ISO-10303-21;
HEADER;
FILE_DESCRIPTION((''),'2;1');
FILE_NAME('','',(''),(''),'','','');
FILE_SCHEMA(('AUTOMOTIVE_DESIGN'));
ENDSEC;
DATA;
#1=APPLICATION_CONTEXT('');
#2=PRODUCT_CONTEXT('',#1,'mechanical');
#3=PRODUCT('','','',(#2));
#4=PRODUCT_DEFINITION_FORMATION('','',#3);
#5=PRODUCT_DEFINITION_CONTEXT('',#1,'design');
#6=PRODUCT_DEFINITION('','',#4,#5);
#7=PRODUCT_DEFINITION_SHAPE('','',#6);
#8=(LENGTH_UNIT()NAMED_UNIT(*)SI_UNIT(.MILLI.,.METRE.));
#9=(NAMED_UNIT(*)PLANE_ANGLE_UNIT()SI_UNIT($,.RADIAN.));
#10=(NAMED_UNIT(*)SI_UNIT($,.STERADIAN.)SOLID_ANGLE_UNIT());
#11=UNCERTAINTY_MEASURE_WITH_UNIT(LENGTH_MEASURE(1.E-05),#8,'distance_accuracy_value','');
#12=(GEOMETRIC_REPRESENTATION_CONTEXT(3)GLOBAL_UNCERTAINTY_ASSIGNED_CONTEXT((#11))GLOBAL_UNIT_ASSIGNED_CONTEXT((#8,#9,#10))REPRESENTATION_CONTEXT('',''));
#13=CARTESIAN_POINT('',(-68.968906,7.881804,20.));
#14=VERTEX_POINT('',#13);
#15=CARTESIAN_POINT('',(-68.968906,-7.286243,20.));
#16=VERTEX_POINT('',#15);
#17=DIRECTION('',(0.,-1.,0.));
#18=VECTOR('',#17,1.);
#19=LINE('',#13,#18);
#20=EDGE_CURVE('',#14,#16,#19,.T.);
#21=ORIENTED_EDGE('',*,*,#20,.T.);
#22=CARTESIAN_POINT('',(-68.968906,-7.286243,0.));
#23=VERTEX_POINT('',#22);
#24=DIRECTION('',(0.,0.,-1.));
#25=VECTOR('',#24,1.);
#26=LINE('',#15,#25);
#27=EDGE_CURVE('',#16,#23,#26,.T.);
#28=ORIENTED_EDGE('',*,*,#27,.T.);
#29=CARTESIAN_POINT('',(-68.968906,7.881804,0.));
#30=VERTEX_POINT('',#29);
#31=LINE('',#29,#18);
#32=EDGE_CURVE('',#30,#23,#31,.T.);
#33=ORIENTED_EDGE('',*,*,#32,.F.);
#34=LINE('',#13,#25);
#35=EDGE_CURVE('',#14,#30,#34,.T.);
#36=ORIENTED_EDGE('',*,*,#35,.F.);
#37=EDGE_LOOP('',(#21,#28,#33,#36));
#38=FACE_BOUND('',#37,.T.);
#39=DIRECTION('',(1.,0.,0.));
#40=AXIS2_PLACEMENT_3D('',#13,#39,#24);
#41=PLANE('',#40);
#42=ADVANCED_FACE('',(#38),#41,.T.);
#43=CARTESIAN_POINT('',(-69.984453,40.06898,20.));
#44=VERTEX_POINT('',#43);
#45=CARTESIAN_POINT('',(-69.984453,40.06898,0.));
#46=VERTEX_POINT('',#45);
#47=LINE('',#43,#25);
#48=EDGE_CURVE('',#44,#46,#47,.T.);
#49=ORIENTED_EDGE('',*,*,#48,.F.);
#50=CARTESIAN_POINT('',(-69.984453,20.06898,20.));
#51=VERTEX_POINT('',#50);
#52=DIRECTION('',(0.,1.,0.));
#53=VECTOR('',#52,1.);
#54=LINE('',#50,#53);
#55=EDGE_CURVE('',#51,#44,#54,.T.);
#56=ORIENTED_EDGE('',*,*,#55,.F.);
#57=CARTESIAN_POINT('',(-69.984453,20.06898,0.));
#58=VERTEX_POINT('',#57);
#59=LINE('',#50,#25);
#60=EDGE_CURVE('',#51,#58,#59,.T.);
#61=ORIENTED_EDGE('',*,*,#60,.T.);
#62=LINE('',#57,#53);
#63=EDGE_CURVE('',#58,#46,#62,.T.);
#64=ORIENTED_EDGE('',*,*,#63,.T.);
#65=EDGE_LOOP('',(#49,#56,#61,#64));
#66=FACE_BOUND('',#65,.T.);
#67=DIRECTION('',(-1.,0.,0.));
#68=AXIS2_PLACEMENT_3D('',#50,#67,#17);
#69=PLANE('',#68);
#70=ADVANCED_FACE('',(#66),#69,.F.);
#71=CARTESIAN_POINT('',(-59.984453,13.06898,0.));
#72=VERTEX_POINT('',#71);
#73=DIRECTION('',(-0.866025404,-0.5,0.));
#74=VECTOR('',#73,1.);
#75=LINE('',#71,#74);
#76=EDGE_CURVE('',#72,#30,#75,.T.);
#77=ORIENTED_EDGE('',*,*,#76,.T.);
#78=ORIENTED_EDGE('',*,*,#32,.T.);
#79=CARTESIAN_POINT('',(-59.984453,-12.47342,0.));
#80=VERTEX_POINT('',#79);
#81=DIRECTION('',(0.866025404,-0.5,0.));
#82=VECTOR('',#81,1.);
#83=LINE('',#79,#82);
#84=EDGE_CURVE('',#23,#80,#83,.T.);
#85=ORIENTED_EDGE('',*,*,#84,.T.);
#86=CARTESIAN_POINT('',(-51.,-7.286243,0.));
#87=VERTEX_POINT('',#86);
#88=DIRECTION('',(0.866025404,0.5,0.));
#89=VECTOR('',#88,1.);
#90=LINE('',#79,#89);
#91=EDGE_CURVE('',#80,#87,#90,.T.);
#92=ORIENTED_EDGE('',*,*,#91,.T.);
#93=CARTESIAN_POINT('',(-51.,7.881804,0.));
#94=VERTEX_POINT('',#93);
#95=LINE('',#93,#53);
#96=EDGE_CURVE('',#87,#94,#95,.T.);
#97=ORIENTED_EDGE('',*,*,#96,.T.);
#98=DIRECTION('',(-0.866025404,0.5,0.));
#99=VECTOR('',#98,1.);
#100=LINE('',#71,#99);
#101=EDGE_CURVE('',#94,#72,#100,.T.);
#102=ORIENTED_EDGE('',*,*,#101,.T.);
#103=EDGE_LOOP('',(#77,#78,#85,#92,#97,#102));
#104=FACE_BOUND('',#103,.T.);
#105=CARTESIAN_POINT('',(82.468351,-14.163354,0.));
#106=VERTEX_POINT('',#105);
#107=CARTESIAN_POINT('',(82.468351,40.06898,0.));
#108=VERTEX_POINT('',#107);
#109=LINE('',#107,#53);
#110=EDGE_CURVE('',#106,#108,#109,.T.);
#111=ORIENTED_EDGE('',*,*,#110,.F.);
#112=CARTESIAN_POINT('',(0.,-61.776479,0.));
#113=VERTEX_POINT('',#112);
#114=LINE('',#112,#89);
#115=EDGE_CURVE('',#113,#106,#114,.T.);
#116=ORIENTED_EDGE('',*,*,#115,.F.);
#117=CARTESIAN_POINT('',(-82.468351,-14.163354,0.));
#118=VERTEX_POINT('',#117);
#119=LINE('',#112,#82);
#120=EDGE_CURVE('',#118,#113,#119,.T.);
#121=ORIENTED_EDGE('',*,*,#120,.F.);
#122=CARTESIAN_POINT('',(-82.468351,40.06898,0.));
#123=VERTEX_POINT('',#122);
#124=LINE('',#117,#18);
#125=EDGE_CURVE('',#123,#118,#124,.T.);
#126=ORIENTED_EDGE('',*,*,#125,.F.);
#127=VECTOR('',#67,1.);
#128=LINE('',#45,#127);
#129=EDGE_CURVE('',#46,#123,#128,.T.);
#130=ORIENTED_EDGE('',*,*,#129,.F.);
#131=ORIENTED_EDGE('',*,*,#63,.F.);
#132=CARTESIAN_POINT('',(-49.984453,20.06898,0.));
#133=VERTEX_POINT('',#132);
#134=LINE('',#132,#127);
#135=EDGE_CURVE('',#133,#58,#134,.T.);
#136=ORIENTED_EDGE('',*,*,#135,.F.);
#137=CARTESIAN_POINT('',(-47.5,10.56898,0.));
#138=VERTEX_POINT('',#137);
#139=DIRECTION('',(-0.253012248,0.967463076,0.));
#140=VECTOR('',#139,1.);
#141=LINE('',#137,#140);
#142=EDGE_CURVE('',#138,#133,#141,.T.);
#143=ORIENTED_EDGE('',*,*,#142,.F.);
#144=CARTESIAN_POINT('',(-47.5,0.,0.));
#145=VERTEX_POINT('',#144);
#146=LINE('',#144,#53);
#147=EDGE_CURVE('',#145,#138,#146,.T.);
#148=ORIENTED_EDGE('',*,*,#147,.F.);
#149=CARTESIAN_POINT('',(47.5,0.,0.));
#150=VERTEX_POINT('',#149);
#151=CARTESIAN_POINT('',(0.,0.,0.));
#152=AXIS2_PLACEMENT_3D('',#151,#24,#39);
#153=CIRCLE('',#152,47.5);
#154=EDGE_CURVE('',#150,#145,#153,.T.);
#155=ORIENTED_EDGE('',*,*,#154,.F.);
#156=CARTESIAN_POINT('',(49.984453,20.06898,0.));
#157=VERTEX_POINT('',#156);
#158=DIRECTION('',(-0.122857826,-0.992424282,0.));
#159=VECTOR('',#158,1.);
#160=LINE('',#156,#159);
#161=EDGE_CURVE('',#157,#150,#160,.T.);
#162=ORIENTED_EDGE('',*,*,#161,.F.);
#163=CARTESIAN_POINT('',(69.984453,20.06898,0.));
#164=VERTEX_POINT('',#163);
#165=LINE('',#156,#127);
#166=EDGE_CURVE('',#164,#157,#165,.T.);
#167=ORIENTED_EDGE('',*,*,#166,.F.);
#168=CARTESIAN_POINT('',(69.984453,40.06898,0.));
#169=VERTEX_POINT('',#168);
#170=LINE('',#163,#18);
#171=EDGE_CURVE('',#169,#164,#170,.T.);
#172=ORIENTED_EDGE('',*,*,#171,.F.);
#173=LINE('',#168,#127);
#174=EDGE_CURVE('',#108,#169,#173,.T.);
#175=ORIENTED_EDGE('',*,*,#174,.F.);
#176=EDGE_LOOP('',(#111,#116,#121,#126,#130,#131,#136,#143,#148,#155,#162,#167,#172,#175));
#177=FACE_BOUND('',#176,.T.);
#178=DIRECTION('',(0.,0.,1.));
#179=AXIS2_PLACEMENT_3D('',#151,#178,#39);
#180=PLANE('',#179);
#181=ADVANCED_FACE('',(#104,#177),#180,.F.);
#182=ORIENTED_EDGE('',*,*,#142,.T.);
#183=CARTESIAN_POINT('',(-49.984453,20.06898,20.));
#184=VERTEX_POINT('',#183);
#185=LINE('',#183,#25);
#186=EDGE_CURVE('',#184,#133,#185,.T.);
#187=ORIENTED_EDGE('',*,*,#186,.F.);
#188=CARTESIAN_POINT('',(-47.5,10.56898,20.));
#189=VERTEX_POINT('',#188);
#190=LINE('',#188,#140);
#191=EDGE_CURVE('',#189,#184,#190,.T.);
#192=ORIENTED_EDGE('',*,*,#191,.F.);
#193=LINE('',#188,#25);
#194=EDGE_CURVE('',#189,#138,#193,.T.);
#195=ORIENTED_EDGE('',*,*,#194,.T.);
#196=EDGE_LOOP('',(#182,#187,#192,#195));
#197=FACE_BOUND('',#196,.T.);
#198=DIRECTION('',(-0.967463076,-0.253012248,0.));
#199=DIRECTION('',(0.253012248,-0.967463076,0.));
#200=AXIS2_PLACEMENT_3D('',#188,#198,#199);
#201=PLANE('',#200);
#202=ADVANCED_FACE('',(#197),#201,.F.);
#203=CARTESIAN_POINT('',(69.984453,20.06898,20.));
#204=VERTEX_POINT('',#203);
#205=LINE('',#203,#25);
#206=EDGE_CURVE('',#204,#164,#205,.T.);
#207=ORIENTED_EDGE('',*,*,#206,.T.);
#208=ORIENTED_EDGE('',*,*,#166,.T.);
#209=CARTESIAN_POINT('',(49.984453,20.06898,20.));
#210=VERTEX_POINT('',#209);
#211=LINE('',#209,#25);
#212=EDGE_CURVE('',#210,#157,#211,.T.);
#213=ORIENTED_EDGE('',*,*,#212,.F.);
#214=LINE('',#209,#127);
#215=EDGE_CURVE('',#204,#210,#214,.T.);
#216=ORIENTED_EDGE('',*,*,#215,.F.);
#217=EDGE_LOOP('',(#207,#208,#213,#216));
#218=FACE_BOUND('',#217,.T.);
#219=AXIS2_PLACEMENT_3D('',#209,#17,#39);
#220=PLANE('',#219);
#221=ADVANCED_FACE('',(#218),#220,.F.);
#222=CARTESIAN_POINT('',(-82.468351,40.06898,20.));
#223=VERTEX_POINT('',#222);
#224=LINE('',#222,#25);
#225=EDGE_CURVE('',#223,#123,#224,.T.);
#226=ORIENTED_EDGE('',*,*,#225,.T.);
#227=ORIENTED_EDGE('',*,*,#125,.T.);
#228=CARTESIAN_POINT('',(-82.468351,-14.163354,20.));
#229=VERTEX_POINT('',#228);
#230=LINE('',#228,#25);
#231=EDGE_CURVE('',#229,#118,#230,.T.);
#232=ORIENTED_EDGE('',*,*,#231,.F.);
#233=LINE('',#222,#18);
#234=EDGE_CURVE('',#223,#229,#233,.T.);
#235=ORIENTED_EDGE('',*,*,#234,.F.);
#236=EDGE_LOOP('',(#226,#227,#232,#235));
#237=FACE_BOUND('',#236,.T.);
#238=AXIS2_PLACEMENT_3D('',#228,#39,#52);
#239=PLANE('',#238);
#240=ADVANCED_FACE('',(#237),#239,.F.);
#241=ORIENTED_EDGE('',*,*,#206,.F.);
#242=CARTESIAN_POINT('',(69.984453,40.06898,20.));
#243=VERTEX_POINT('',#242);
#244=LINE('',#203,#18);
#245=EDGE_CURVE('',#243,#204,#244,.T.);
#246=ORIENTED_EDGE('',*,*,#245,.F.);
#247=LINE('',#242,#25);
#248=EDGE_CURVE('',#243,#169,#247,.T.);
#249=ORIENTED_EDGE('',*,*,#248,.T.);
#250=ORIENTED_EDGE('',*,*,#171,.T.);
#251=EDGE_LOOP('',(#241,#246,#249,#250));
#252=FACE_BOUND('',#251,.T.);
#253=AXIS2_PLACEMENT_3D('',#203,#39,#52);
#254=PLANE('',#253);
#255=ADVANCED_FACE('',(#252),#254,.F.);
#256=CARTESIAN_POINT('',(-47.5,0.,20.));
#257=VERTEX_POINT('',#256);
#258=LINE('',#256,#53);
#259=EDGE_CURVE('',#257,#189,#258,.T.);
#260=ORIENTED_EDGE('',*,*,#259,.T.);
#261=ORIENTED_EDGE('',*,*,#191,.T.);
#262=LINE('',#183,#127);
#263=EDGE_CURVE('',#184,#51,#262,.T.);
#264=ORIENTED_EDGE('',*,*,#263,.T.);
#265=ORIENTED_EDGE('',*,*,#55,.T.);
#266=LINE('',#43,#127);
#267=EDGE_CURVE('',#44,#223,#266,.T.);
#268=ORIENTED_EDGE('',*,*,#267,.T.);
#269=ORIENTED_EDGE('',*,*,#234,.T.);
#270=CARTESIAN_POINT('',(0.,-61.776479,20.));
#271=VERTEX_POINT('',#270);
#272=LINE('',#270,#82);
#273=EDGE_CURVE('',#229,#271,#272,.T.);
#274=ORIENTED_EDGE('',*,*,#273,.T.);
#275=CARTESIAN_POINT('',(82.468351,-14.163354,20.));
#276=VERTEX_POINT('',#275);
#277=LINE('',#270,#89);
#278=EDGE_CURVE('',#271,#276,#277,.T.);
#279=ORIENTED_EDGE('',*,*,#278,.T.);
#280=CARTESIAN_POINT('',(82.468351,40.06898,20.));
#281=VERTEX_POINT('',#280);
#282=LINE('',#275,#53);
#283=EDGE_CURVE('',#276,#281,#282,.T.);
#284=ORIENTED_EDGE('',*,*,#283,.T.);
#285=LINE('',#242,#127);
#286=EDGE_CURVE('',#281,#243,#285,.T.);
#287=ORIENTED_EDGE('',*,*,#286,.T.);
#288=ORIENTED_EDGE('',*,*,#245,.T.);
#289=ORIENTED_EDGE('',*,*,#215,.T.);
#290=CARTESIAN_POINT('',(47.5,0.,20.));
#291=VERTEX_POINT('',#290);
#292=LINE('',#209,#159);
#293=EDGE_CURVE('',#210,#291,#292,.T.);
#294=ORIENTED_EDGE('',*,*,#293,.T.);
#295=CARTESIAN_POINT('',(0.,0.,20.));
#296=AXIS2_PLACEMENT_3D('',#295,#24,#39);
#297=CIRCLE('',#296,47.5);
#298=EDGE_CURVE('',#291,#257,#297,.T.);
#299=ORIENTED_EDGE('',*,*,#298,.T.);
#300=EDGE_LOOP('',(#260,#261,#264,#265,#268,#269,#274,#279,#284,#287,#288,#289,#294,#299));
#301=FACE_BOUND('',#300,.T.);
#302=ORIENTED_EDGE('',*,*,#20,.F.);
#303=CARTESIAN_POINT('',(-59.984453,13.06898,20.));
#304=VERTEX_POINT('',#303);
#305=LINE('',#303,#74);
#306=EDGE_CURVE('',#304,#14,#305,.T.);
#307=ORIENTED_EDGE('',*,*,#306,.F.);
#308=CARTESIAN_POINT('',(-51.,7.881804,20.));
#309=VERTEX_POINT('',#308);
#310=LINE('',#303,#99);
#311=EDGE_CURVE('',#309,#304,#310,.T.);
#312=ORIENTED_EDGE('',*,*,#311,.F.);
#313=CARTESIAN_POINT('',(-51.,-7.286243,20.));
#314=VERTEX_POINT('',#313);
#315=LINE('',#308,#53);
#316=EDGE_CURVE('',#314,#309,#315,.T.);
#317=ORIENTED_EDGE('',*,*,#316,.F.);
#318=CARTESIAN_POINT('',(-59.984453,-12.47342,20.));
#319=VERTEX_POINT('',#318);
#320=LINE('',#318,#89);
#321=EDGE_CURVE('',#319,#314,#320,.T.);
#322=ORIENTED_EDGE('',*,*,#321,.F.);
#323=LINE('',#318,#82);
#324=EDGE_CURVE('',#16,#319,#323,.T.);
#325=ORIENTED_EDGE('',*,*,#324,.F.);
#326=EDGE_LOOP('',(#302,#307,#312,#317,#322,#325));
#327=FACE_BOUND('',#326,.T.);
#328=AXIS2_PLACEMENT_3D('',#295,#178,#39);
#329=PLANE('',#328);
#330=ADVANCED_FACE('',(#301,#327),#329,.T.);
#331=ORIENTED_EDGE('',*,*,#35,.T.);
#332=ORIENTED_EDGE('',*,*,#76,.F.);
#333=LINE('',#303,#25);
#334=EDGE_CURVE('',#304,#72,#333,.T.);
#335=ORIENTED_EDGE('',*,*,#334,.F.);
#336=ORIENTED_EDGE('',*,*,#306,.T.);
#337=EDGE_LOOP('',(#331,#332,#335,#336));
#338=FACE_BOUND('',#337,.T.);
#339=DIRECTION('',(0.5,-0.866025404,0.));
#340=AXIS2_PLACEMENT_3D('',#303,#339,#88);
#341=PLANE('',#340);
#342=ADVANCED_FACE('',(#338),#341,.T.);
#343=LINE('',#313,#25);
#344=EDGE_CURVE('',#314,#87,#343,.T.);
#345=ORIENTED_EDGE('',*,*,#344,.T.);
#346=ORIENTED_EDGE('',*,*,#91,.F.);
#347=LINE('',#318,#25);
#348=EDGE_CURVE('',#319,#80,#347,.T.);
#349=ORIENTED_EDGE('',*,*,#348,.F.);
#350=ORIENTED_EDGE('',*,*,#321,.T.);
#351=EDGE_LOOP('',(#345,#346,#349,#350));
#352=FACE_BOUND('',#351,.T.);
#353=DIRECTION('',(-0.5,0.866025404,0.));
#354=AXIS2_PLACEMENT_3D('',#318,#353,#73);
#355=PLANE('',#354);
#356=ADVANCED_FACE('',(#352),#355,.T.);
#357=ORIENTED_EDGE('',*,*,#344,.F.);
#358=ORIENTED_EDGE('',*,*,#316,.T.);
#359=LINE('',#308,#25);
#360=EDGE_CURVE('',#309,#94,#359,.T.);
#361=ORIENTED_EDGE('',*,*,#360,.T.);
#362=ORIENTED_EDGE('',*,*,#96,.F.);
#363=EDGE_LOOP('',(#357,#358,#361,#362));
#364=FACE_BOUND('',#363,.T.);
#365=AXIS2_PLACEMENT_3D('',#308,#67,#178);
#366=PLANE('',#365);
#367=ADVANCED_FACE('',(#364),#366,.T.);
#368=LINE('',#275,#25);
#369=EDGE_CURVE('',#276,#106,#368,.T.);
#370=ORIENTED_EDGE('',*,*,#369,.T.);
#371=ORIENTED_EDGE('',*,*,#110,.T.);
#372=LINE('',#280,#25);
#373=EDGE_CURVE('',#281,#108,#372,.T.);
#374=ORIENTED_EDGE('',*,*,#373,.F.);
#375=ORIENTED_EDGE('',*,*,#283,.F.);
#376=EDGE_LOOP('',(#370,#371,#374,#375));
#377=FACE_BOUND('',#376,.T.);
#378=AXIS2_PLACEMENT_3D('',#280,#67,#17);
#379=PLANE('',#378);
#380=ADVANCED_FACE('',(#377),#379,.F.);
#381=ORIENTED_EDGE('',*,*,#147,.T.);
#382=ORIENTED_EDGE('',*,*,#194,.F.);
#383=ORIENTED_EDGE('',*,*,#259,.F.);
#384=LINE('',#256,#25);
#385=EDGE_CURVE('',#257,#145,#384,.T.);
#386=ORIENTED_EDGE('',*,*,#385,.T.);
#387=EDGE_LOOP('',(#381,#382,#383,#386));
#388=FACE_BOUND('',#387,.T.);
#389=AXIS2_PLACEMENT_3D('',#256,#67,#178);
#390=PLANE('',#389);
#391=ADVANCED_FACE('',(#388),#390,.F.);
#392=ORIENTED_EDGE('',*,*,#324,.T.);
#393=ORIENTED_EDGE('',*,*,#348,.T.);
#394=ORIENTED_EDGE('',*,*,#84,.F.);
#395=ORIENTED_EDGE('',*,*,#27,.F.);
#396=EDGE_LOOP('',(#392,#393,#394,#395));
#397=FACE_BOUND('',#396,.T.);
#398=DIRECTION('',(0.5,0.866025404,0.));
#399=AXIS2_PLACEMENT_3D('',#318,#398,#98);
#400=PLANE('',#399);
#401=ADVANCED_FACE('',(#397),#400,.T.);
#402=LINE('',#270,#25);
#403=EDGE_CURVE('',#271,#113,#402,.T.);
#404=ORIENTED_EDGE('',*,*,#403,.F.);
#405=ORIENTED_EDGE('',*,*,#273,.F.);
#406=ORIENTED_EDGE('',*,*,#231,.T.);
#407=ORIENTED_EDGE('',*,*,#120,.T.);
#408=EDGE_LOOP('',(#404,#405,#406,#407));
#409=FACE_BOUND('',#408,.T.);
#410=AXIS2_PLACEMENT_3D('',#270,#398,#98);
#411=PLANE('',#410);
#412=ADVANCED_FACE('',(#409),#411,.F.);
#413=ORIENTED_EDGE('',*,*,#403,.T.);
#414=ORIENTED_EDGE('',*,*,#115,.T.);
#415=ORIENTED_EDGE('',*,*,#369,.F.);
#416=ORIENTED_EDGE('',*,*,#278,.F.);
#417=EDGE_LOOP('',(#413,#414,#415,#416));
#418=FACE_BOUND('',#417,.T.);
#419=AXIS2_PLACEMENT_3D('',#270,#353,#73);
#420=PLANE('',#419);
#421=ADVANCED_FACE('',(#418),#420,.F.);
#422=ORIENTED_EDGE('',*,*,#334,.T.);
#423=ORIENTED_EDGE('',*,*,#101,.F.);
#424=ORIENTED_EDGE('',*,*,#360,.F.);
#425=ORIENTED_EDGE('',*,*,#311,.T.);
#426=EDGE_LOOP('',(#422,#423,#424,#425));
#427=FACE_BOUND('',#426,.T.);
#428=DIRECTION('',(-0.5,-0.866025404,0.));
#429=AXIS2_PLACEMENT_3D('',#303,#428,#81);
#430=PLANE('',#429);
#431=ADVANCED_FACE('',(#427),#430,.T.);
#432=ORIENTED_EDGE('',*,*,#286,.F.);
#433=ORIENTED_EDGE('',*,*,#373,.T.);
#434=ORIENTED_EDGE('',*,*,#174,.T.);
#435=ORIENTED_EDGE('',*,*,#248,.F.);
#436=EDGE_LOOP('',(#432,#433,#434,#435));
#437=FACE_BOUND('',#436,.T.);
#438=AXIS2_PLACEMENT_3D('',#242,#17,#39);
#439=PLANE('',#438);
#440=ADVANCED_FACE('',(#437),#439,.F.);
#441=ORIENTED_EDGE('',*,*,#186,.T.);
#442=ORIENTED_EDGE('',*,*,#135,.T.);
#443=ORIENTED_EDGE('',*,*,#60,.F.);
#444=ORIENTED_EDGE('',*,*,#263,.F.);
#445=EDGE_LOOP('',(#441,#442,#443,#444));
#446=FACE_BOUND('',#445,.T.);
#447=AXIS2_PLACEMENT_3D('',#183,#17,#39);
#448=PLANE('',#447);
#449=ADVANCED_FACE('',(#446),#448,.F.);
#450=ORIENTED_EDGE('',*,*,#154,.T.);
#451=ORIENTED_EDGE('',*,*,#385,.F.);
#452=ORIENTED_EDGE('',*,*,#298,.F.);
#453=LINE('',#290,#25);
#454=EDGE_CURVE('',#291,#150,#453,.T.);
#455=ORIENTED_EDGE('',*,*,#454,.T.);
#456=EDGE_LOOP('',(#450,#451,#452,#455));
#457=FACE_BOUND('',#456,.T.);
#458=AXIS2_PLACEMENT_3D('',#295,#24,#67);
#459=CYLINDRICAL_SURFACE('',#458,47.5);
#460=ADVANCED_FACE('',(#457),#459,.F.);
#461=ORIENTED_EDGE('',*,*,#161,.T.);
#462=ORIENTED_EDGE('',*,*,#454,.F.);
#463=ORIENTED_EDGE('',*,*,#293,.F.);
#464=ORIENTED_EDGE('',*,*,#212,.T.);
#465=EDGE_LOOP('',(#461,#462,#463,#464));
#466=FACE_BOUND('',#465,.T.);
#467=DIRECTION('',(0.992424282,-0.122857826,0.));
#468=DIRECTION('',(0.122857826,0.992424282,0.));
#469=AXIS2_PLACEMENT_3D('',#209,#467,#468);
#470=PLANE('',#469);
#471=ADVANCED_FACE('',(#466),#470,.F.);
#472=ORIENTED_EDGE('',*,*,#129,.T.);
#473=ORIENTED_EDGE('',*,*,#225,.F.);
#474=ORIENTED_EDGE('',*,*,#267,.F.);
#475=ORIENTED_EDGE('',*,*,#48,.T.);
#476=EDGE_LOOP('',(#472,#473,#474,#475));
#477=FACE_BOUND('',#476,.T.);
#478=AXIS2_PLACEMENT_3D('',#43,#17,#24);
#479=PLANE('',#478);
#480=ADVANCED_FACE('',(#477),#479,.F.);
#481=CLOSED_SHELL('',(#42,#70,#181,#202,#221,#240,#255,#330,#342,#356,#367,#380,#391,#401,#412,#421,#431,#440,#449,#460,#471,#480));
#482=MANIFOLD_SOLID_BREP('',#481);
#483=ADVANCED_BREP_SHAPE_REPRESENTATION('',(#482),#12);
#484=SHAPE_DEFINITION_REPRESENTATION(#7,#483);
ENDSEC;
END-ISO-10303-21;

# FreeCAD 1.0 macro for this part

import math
import FreeCAD as App
import Part
import Sketcher
from FreeCAD import Vector
Q = App.Units.Quantity

doc = App.newDocument("Part")
body = doc.addObject("PartDesign::Body", "Body")

# Sketch on XY plane
sketch1 = doc.addObject("Sketcher::SketchObject", "Sketch")
body.addObject(sketch1)
sketch1.AttachmentSupport = (doc.XY_Plane, [""])
sketch1.MapMode = "FlatFace"
sketch1.addGeometry([
    Part.LineSegment(Vector(-50, 20, 0), Vector(-70, 20, 0)),  # 0
    Part.LineSegment(Vector(-70, 20, 0), Vector(-70, 40, 0)),  # 1
    Part.LineSegment(Vector(-70, 40, 0), Vector(-82, 40, 0)),  # 2
    Part.LineSegment(Vector(-82, 40, 0), Vector(-82, -14, 0)),  # 3
    Part.LineSegment(Vector(-82, -14, 0), Vector(0, -62, 0)),  # 4
    Part.LineSegment(Vector(0, -62, 0), Vector(82, -14, 0)),  # 5
    Part.LineSegment(Vector(82, -14, 0), Vector(82, 40, 0)),  # 6
    Part.LineSegment(Vector(82, 40, 0), Vector(70, 40, 0)),  # 7
    Part.LineSegment(Vector(70, 40, 0), Vector(70, 20, 0)),  # 8
    Part.LineSegment(Vector(70, 20, 0), Vector(50, 20, 0)),  # 9
    Part.LineSegment(Vector(50, 20, 0), Vector(48, 0, 0)),  # 10
    Part.ArcOfCircle(Part.Circle(Vector(0, 0, 0), Vector(0, 0, 1), 48), math.radians(180), math.radians(360)),  # 11
    Part.LineSegment(Vector(-48, 0, 0), Vector(-48, 11, 0)),  # 12
    Part.LineSegment(Vector(-48, 11, 0), Vector(-50, 20, 0)),  # 13
    Part.LineSegment(Vector(-69, 8, 0), Vector(-60, 13, 0)),  # 14
    Part.LineSegment(Vector(-60, 13, 0), Vector(-51, 8, 0)),  # 15
    Part.LineSegment(Vector(-51, 8, 0), Vector(-51, -7, 0)),  # 16
    Part.LineSegment(Vector(-51, -7, 0), Vector(-60, -12, 0)),  # 17
    Part.LineSegment(Vector(-60, -12, 0), Vector(-69, -7, 0)),  # 18
    Part.LineSegment(Vector(-69, -7, 0), Vector(-69, 8, 0)),  # 19
], False)
sketch1.addConstraint([
    Sketcher.Constraint("Coincident", 0, 2, 1, 1),
    Sketcher.Constraint("Coincident", 1, 2, 2, 1),
    Sketcher.Constraint("Coincident", 2, 2, 3, 1),
    Sketcher.Constraint("Coincident", 3, 2, 4, 1),
    Sketcher.Constraint("Coincident", 4, 2, 5, 1),
    Sketcher.Constraint("Coincident", 5, 2, 6, 1),
    Sketcher.Constraint("Coincident", 6, 2, 7, 1),
    Sketcher.Constraint("Coincident", 7, 2, 8, 1),
    Sketcher.Constraint("Coincident", 8, 2, 9, 1),
    Sketcher.Constraint("Coincident", 9, 2, 10, 1),
    Sketcher.Constraint("Coincident", 10, 2, 11, 2),
    Sketcher.Constraint("Tangent", 11, 1, 12, 1),
    Sketcher.Constraint("Coincident", 12, 2, 13, 1),
    Sketcher.Constraint("Coincident", 13, 2, 0, 1),
    Sketcher.Constraint("Coincident", 14, 2, 15, 1),
    Sketcher.Constraint("Coincident", 15, 2, 16, 1),
    Sketcher.Constraint("Coincident", 16, 2, 17, 1),
    Sketcher.Constraint("Coincident", 17, 2, 18, 1),
    Sketcher.Constraint("Coincident", 18, 2, 19, 1),
    Sketcher.Constraint("Coincident", 19, 2, 14, 1),
    Sketcher.Constraint("Horizontal", 0),
    Sketcher.Constraint("Vertical", 1),
    Sketcher.Constraint("Horizontal", 2),
    Sketcher.Constraint("Vertical", 3),
    Sketcher.Constraint("Vertical", 6),
    Sketcher.Constraint("Horizontal", 7),
    Sketcher.Constraint("Vertical", 8),
    Sketcher.Constraint("Horizontal", 9),
    Sketcher.Constraint("Vertical", 12),
    Sketcher.Constraint("Vertical", 16),
    Sketcher.Constraint("Vertical", 19),
    Sketcher.Constraint("Coincident", 11, 3, -1, 1),
    Sketcher.Constraint("Symmetric", 3, 2, 5, 2, -2),
    Sketcher.Constraint("Symmetric", 1, 2, 7, 2, -2),
    Sketcher.Constraint("Symmetric", 9, 2, 13, 2, -2),
    Sketcher.Constraint("PointOnObject", 4, 2, -2),
    Sketcher.Constraint("PointOnObject", 10, 2, -1),
    Sketcher.Constraint("Parallel", 5, 14),
    Sketcher.Constraint("Parallel", 4, 15),
    Sketcher.Constraint("Parallel", 14, 17),
    Sketcher.Constraint("Parallel", 15, 18),
    Sketcher.Constraint("Horizontal", 16, 2, 18, 2),
    Sketcher.Constraint("Horizontal", 15, 2, 19, 2),
    Sketcher.Constraint("Equal", 9, 1),
    Sketcher.Constraint("Radius", 11, 47.5),
    Sketcher.Constraint("DistanceX", 0, 2, 0, 1, 20.0),
    Sketcher.Constraint("Angle", 4, Q("-30 deg")),
    Sketcher.Constraint("DistanceX", 15, 2, -1, 1, 51.0),
    Sketcher.Constraint("DistanceX", 0, 2, 14, 2, 10.0),
    Sketcher.Constraint("DistanceY", 14, 2, 0, 2, 7.0),
    Sketcher.Constraint("DistanceY", 12, 2, 0, 2, 9.5),
    Sketcher.Constraint("DistanceY", 12, 1, 12, 2, 10.56898),
    Sketcher.Constraint("DistanceX", 3, 2, 5, 2, 164.936702),
    Sketcher.Constraint("DistanceY", 17, 2, 14, 2, 25.5424),
    Sketcher.Constraint("DistanceX", 2, 2, 2, 1, 12.483898),
    Sketcher.Constraint("DistanceY", 3, 2, 3, 1, 54.232335),
])
pad1 = doc.addObject("PartDesign::Pad", "Pad")
body.addObject(pad1)
pad1.Profile = sketch1
pad1.Length = 20

doc.recompute()
